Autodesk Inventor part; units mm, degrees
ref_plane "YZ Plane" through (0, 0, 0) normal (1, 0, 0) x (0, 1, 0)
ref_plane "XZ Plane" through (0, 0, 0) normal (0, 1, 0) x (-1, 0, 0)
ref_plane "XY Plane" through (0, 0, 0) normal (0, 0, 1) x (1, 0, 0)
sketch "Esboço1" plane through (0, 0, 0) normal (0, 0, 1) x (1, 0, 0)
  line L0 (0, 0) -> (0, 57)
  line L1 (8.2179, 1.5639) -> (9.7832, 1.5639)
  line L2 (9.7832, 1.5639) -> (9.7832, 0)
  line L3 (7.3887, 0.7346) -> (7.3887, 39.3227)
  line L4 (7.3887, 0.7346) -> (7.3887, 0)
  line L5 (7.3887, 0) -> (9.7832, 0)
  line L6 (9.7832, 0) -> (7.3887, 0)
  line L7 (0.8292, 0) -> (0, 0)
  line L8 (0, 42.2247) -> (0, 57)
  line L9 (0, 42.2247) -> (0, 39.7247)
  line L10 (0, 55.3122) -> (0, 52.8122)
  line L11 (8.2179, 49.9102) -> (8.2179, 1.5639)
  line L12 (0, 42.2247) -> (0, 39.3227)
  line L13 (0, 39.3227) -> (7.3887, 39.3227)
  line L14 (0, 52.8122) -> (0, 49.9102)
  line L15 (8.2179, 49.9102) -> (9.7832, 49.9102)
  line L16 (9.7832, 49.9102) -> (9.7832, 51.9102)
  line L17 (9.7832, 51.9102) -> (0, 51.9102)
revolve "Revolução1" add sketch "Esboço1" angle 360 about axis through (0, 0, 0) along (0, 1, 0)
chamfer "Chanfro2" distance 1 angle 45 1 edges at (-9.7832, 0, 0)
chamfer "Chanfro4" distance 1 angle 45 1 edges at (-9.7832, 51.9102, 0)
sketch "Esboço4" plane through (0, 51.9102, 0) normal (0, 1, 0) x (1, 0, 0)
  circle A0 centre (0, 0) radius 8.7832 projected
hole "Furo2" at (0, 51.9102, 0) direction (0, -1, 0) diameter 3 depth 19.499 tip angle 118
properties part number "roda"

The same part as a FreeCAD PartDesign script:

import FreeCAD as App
import Part
import Sketcher
Q = App.Units.Quantity


def edges_at(feature, points):
    """Names of the edges that pass closest to the given points."""
    edges = feature.Shape.Edges
    near = lambda p: min(range(len(edges)), key=lambda i: edges[i].distToShape(Part.Vertex(*p))[0])
    return sorted({f"Edge{near(p) + 1}" for p in points})


def add_polygon(sketch, points):
    """Adds a closed chain of lines whose ends are joined by coincident constraints."""
    first, n = sketch.GeometryCount, len(points)
    for a, b in zip(points, points[1:] + points[:1]):
        sketch.addGeometry(Part.LineSegment(App.Vector(*a, 0), App.Vector(*b, 0)), False)
    for i in range(n):
        sketch.addConstraint(Sketcher.Constraint("Coincident", first + i, 2, first + (i + 1) % n, 1))

doc = App.newDocument("Part")
params = doc.addObject("Spreadsheet::Sheet", "Params")
for row, (alias, value) in enumerate([
    ("sketch1_height", "2 mm"),
    ("revolution_angle", "360 deg"),
    ("chamfer_size", "1 mm"),
    ("chamfer2_size", "1 mm"),
    ("sketch2_diameter", "3 mm"),
    ("hole_diameter", "3 mm"),
    ("hole_depth", "19.499 mm"),
], start=1):
    params.set(f"A{row}", alias)
    params.set(f"B{row}", "=" + value)
    params.setAlias(f"B{row}", alias)

body = doc.addObject("PartDesign::Body", "Body")

sketch1 = body.newObject("Sketcher::SketchObject", "Sketch")
sketch1.AttachmentSupport = (doc.getObject("XY_Plane"), [""])
sketch1.MapMode = "FlatFace"
add_polygon(sketch1, [(0, 51.9), (0, 39.3), (7.4, 39.3), (7.4, 0), (9.8, 0), (9.8, 1.6), (8.2, 1.6), (8.2, 49.9), (9.8, 49.9), (9.8, 51.9)])
sketch1.addConstraint(Sketcher.Constraint("Vertical", 0))
sketch1.addConstraint(Sketcher.Constraint("Horizontal", 1))
sketch1.addConstraint(Sketcher.Constraint("Vertical", 2))
sketch1.addConstraint(Sketcher.Constraint("Horizontal", 3))
sketch1.addConstraint(Sketcher.Constraint("Vertical", 4))
sketch1.addConstraint(Sketcher.Constraint("Horizontal", 5))
sketch1.addConstraint(Sketcher.Constraint("Vertical", 6))
sketch1.addConstraint(Sketcher.Constraint("Horizontal", 7))
sketch1.addConstraint(Sketcher.Constraint("Vertical", 8))
sketch1.addConstraint(Sketcher.Constraint("Horizontal", 9))
sketch1.addConstraint(Sketcher.Constraint("PointOnObject", 0, 2, -2))
sketch1.addConstraint(Sketcher.Constraint("PointOnObject", 2, 2, -1))
sketch1.addConstraint(Sketcher.Constraint("Vertical", 4, 2, 7, 2))
sketch1.addConstraint(Sketcher.Constraint("DistanceY", 8, 1, 8, 2, Q("2 mm")))
sketch1.addConstraint(Sketcher.Constraint("DistanceY", 4, 1, 4, 2, Q("1.564 mm")))
sketch1.addConstraint(Sketcher.Constraint("DistanceX", 1, 1, 1, 2, Q("7.3887 mm")))
sketch1.addConstraint(Sketcher.Constraint("DistanceX", 3, 1, 3, 2, Q("2.3945 mm")))
sketch1.addConstraint(Sketcher.Constraint("DistanceX", 5, 2, 5, 1, Q("1.5653 mm")))
sketch1.addConstraint(Sketcher.Constraint("DistanceY", 0, 2, 0, 1, Q("12.5875 mm")))
sketch1.addConstraint(Sketcher.Constraint("DistanceY", 2, 2, 2, 1, Q("39.3227 mm")))
sketch1.setExpression("Constraints[23]", "Params.sketch1_height")
revolution = body.newObject("PartDesign::Revolution", "Revolution")
revolution.Profile = sketch1
revolution.ReferenceAxis = (sketch1, ["V_Axis"])
revolution.setExpression("Angle", "Params.revolution_angle")
doc.recompute()

chamfer = body.newObject("PartDesign::Chamfer", "Chamfer")
chamfer.Base = (revolution, edges_at(revolution, [(-9.783, 0, 0)]))
chamfer.setExpression("Size", "Params.chamfer_size")
doc.recompute()

chamfer2 = body.newObject("PartDesign::Chamfer", "Chamfer001")
chamfer2.Base = (chamfer, edges_at(chamfer, [(-9.783, 51.91, 0)]))
chamfer2.setExpression("Size", "Params.chamfer2_size")

sketch2 = body.newObject("Sketcher::SketchObject", "Sketch001")
sketch2.AttachmentSupport = (doc.getObject("XZ_Plane"), [""])
sketch2.MapMode = "FlatFace"
sketch2.AttachmentOffset = App.Placement(App.Vector(0, 0, -51.9102), App.Rotation())
sketch2.addGeometry(Part.Circle(App.Vector(0, 0, 0), App.Vector(0, 0, 1), 1.5), False)
sketch2.addConstraint(Sketcher.Constraint("Coincident", 0, 3, -1, 1))
sketch2.addConstraint(Sketcher.Constraint("Diameter", 0, Q("3 mm")))
sketch2.setExpression("Constraints[1]", "Params.sketch2_diameter")
doc.recompute()
hole = body.newObject("PartDesign::Hole", "Hole")
hole.Profile = sketch2
hole.ThreadType = "None"
hole.setExpression("Diameter", "Params.hole_diameter")
hole.DepthType = "Dimension"
hole.setExpression("Depth", "Params.hole_depth")
hole.DrillPoint = "Angled"
hole.DrillPointAngle = 118
hole.Reversed = True

doc.recompute()
